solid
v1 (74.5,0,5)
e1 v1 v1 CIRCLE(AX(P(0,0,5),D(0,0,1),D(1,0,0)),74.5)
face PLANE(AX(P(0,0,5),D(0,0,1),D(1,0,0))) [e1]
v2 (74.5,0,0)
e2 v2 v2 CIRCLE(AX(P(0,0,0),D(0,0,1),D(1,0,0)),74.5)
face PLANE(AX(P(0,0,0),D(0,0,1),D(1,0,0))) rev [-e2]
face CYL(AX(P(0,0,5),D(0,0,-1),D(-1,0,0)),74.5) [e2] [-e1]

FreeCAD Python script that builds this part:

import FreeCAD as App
import Part
import Sketcher

doc = App.newDocument("Part")
body = doc.addObject("PartDesign::Body", "Body")

# Sketch on XY plane
sketch1 = body.newObject("Sketcher::SketchObject", "Sketch")
sketch1.AttachmentSupport = (doc.getObject("XY_Plane"), [""])
sketch1.MapMode = "FlatFace"
sketch1.addGeometry(Part.Circle(App.Vector(0, 0, 0), App.Vector(0, 0, 1), 74), False)
sketch1.addConstraint([
    Sketcher.Constraint("Coincident", 0, 3, -1, 1),
    Sketcher.Constraint("Diameter", 0, 149.0),
])
pad1 = body.newObject("PartDesign::Pad", "Pad")
pad1.Profile = sketch1
pad1.Length = 5

doc.recompute()
